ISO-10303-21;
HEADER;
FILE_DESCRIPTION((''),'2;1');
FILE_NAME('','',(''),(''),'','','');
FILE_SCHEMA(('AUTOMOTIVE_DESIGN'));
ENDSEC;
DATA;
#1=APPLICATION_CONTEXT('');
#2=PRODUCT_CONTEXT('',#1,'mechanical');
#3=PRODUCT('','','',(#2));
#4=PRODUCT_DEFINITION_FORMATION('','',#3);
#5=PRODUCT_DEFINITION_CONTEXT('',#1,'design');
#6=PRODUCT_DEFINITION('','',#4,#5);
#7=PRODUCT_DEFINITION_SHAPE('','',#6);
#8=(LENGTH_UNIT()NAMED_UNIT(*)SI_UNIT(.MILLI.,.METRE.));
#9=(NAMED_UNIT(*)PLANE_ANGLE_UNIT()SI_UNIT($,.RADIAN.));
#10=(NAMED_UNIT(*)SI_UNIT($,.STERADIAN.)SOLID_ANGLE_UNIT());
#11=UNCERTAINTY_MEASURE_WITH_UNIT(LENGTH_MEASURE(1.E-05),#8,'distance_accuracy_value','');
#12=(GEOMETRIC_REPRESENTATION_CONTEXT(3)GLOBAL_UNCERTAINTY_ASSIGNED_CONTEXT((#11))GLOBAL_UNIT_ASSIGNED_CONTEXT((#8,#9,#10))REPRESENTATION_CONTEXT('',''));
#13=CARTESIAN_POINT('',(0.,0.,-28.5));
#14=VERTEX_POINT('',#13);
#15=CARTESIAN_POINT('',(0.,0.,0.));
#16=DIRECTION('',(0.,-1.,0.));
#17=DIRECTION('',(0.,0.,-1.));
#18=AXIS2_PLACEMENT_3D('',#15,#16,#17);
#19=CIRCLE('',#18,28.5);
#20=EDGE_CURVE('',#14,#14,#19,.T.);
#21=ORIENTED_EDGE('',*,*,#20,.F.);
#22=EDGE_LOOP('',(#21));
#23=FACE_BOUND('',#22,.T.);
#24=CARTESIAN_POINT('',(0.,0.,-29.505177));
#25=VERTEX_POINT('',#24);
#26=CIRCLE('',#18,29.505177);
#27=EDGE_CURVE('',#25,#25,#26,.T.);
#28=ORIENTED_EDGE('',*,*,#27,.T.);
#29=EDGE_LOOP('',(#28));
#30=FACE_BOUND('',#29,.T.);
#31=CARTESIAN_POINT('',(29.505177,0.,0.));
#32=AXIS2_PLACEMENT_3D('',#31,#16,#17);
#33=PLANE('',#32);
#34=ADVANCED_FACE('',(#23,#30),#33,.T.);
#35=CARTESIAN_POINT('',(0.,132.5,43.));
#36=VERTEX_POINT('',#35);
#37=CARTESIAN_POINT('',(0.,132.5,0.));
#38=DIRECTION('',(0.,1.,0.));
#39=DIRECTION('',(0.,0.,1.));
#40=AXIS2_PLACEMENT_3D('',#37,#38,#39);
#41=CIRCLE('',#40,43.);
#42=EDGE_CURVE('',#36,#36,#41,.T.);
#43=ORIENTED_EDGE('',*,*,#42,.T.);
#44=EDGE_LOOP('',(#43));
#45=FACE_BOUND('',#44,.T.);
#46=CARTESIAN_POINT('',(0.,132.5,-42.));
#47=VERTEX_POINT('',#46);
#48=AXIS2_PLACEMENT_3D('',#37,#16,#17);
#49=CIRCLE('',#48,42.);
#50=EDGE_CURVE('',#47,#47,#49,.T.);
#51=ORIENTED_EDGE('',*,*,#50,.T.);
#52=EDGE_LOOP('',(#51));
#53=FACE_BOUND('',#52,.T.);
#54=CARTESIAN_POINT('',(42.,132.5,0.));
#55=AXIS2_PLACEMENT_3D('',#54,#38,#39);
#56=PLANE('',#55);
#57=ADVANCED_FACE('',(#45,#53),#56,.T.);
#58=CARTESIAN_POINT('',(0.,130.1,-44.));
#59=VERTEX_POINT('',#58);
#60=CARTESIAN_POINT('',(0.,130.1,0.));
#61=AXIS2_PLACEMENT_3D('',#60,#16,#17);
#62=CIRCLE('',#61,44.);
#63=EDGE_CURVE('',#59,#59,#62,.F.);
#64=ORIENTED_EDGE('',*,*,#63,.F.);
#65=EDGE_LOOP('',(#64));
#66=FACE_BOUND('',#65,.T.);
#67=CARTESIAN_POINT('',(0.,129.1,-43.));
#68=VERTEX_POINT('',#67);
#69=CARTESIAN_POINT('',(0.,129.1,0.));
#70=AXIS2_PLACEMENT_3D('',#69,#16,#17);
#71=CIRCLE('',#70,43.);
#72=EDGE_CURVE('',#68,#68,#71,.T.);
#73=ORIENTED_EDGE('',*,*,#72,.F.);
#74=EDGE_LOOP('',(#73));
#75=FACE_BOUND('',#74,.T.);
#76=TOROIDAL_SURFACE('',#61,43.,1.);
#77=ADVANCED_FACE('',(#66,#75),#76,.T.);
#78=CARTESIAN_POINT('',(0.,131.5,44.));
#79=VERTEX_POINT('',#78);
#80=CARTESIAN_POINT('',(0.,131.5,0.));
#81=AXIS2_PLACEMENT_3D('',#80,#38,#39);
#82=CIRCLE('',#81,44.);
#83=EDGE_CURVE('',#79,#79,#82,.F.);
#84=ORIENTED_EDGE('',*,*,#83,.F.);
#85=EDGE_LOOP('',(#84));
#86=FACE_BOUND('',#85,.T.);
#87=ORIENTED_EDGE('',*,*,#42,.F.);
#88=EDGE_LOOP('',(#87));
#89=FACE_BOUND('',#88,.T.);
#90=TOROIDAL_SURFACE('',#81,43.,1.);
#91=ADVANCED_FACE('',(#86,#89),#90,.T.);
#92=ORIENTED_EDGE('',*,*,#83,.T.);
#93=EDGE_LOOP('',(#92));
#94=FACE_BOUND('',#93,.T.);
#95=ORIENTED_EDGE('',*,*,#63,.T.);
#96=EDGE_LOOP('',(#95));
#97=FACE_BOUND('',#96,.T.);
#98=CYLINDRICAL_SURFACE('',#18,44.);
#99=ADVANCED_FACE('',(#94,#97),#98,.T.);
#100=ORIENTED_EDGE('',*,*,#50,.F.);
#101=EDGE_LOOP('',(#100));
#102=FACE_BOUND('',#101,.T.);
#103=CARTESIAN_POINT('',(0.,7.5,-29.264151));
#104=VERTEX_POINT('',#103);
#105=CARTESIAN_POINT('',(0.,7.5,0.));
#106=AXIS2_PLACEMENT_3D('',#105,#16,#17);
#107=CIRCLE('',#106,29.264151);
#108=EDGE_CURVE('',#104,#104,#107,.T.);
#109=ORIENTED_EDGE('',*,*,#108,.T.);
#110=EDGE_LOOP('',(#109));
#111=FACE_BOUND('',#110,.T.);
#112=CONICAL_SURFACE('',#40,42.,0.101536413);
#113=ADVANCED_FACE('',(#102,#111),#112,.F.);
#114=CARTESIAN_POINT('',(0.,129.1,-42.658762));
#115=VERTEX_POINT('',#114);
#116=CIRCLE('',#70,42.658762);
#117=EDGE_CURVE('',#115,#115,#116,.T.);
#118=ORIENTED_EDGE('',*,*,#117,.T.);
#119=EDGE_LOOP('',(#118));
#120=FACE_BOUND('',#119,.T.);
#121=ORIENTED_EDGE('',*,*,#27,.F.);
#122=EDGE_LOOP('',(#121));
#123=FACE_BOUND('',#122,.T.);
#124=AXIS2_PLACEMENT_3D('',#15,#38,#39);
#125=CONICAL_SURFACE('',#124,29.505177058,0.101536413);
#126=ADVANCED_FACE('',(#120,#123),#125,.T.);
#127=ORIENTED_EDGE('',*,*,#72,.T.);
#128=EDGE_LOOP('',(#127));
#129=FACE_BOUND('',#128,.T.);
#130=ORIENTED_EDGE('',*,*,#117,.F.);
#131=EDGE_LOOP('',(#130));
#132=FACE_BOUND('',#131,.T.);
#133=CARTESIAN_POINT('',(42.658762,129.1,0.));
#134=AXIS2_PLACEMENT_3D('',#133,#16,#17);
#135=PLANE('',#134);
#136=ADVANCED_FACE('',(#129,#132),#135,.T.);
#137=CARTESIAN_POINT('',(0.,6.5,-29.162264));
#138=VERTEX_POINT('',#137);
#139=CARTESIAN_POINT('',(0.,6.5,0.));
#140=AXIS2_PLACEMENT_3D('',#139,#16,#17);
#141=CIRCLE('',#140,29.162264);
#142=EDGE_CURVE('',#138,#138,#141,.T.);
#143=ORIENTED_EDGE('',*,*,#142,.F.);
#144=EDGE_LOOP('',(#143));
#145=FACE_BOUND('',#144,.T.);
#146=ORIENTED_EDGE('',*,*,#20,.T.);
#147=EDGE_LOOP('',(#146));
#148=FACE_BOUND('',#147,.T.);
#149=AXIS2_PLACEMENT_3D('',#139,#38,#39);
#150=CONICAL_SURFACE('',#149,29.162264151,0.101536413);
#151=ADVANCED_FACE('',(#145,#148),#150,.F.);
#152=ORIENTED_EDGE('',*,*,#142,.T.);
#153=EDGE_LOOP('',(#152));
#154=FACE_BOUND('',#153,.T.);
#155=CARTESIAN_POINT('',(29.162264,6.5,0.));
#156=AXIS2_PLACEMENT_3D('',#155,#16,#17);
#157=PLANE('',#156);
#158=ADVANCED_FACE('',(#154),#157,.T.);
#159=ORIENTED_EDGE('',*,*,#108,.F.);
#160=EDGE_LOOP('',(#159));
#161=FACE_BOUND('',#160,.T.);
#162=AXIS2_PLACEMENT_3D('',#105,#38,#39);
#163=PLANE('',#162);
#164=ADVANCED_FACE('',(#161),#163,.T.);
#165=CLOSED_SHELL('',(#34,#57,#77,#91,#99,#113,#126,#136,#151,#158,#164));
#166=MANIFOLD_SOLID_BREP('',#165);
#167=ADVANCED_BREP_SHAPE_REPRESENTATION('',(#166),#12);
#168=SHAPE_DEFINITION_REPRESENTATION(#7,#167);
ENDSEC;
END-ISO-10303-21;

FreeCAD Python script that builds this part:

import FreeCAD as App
import Part
import Sketcher
from FreeCAD import Vector


def edges_at(feature, points):
    """Names of the edges that pass closest to the given points."""
    edges = feature.Shape.Edges
    near = lambda p: min(range(len(edges)), key=lambda i: edges[i].distToShape(Part.Vertex(*p))[0])
    return sorted({f"Edge{near(p) + 1}" for p in points})


def add_polygon(sketch, points):
    """Adds a closed chain of lines whose ends are joined by coincident constraints."""
    first, n = sketch.GeometryCount, len(points)
    for a, b in zip(points, points[1:] + points[:1]):
        sketch.addGeometry(Part.LineSegment(App.Vector(*a, 0), App.Vector(*b, 0)), False)
    for i in range(n):
        sketch.addConstraint(Sketcher.Constraint("Coincident", first + i, 2, first + (i + 1) % n, 1))

doc = App.newDocument("Part")
body = doc.addObject("PartDesign::Body", "Body")

sketch1 = doc.addObject("Sketcher::SketchObject", "Sketch")
body.addObject(sketch1)
sketch1.AttachmentSupport = (doc.XY_Plane, [""])
sketch1.MapMode = "FlatFace"
add_polygon(sketch1, [(29.505177, 0), (42.658762, 129.1), (44, 129.1), (44, 132.5), (42, 132.5), (29.264151, 7.5), (0, 7.5), (0, 6.5), (29.162264, 6.5), (28.5, 0)])
sketch1.addConstraint([
    Sketcher.Constraint("Horizontal", 1),
    Sketcher.Constraint("Vertical", 2),
    Sketcher.Constraint("Horizontal", 3),
    Sketcher.Constraint("Horizontal", 5),
    Sketcher.Constraint("Vertical", 6),
    Sketcher.Constraint("Horizontal", 7),
    Sketcher.Constraint("Horizontal", 9),
    Sketcher.Constraint("PointOnObject", 5, 2, -2),
    Sketcher.Constraint("PointOnObject", 8, 2, -1),
    Sketcher.Constraint("Parallel", 0, 4),
    Sketcher.Constraint("Parallel", 4, 8),
    Sketcher.Constraint("DistanceX", 3, 2, 3, 1, 2.0),
    Sketcher.Constraint("DistanceY", 6, 2, 6, 1, 1.0),
    Sketcher.Constraint("DistanceY", 2, 1, 2, 2, 3.4),
    Sketcher.Constraint("DistanceX", -1, 1, 1, 2, 44.0),
    Sketcher.Constraint("DistanceY", 4, 2, 3, 2, 125.0),
    Sketcher.Constraint("DistanceY", -1, 1, 0, 2, 129.1),
    Sketcher.Constraint("DistanceX", -1, 1, 8, 2, 28.5),
    Sketcher.Constraint("DistanceX", 1, 1, 1, 2, 1.341238),
    Sketcher.Constraint("DistanceX", 5, 2, 5, 1, 29.264151),
])
revolution = doc.addObject("PartDesign::Revolution", "Revolution")
body.addObject(revolution)
revolution.Profile = sketch1
revolution.ReferenceAxis = (sketch1, ["V_Axis"])
revolution.Angle = 360
doc.recompute()

fillet = doc.addObject("PartDesign::Fillet", "Fillet")
body.addObject(fillet)
fillet.Base = (revolution, edges_at(revolution, [(0, 132.5, 44), (0, 129.1, 44)]))
fillet.Radius = 1

doc.recompute()
